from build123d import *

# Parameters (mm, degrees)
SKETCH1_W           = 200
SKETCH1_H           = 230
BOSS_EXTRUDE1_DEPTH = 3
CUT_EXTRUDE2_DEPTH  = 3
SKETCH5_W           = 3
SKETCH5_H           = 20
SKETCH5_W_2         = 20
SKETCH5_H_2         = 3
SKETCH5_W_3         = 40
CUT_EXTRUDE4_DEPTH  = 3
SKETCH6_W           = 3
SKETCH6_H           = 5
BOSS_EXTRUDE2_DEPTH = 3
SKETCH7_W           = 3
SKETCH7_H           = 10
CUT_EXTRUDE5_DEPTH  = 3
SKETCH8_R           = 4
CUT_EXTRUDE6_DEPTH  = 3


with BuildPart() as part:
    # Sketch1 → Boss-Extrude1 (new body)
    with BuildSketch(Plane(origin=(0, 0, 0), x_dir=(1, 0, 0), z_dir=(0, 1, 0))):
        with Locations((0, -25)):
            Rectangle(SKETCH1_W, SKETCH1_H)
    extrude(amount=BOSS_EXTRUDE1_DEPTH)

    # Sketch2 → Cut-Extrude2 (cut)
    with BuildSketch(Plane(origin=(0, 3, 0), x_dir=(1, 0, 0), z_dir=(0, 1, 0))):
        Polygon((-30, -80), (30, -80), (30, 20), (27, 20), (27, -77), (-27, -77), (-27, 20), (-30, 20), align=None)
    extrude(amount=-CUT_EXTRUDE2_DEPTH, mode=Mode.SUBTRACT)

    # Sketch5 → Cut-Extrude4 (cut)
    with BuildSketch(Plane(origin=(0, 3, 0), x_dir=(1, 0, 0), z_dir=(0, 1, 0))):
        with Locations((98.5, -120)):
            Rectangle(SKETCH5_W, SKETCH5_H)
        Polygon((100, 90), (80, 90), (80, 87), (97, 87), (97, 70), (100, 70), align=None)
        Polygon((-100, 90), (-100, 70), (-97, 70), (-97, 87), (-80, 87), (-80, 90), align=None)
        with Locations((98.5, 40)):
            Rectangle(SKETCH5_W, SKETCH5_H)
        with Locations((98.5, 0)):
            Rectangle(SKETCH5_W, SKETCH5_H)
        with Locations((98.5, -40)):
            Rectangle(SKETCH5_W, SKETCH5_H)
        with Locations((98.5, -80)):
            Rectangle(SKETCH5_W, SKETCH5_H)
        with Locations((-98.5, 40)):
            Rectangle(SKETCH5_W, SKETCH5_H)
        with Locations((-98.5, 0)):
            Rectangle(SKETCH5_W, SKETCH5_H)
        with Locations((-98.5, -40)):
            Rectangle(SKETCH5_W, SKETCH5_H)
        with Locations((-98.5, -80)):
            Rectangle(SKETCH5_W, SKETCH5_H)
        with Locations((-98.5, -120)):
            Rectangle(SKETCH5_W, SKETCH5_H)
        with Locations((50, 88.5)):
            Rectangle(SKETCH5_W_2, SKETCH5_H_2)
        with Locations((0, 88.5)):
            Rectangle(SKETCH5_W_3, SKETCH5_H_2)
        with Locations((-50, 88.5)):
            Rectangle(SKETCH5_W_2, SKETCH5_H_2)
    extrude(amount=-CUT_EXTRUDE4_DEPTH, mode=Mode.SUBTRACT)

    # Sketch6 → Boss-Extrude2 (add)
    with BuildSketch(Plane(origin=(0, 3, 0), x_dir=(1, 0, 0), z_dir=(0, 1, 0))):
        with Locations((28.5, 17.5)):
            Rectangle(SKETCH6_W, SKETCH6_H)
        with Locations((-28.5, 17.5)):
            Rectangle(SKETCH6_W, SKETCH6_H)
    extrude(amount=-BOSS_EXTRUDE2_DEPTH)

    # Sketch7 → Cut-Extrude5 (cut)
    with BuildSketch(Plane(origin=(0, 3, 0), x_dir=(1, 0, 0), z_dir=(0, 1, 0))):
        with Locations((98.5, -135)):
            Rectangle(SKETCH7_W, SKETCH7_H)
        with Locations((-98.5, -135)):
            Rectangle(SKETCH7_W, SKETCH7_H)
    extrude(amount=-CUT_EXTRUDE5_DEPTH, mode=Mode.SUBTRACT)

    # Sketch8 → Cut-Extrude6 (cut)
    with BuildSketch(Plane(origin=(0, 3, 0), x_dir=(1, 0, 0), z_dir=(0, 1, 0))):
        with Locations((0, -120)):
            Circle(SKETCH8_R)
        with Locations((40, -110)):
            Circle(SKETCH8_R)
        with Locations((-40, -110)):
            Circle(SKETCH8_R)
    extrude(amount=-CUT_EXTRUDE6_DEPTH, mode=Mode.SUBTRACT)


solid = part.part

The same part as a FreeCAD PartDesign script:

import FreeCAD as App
import Part
import Sketcher
from FreeCAD import Vector

doc = App.newDocument("Part")
body = doc.addObject("PartDesign::Body", "Body")

# Sketch on XZ plane
sketch1 = body.newObject("Sketcher::SketchObject", "Sketch")
sketch1.AttachmentSupport = (doc.getObject("XZ_Plane"), [""])
sketch1.MapMode = "FlatFace"
sketch1.addGeometry([
    Part.LineSegment(Vector(-100, -90, 0), Vector(-100, 140, 0)),
    Part.LineSegment(Vector(-100, 140, 0), Vector(100, 140, 0)),
    Part.LineSegment(Vector(100, 140, 0), Vector(100, -90, 0)),
    Part.LineSegment(Vector(100, -90, 0), Vector(-100, -90, 0)),
], False)
sketch1.addConstraint([
    Sketcher.Constraint("Coincident", 0, 2, 1, 1),
    Sketcher.Constraint("Coincident", 1, 2, 2, 1),
    Sketcher.Constraint("Coincident", 2, 2, 3, 1),
    Sketcher.Constraint("Coincident", 3, 2, 0, 1),
    Sketcher.Constraint("Vertical", 0),
    Sketcher.Constraint("Horizontal", 1),
    Sketcher.Constraint("Vertical", 2),
    Sketcher.Constraint("Horizontal", 3),
    Sketcher.Constraint("DistanceX", 1, 1, 1, 2, 200.0),
    Sketcher.Constraint("DistanceY", 0, 1, 0, 2, 230.0),
    Sketcher.Constraint("DistanceX", 0, 2, -1, 1, 100.0),
    Sketcher.Constraint("DistanceY", -1, 1, 0, 2, 140.0),
])
pad1 = body.newObject("PartDesign::Pad", "Pad")
pad1.Profile = sketch1
pad1.Length = 3
pad1.Reversed = True

# Sketch on XZ plane
sketch2 = body.newObject("Sketcher::SketchObject", "Sketch001")
sketch2.AttachmentSupport = (doc.getObject("XZ_Plane"), [""])
sketch2.MapMode = "FlatFace"
sketch2.AttachmentOffset = App.Placement(Vector(0, 0, -3), App.Rotation())
sketch2.addGeometry([
    Part.LineSegment(Vector(-30, 80, 0), Vector(30, 80, 0)),  # 0
    Part.LineSegment(Vector(30, 80, 0), Vector(30, -20, 0)),  # 1
    Part.LineSegment(Vector(30, -20, 0), Vector(27, -20, 0)),  # 2
    Part.LineSegment(Vector(27, -20, 0), Vector(27, 77, 0)),  # 3
    Part.LineSegment(Vector(27, 77, 0), Vector(-27, 77, 0)),  # 4
    Part.LineSegment(Vector(-27, 77, 0), Vector(-27, -20, 0)),  # 5
    Part.LineSegment(Vector(-27, -20, 0), Vector(-30, -20, 0)),  # 6
    Part.LineSegment(Vector(-30, -20, 0), Vector(-30, 80, 0)),  # 7
], False)
sketch2.addConstraint([
    Sketcher.Constraint("Coincident", 0, 2, 1, 1),
    Sketcher.Constraint("Coincident", 1, 2, 2, 1),
    Sketcher.Constraint("Coincident", 2, 2, 3, 1),
    Sketcher.Constraint("Coincident", 3, 2, 4, 1),
    Sketcher.Constraint("Coincident", 4, 2, 5, 1),
    Sketcher.Constraint("Coincident", 5, 2, 6, 1),
    Sketcher.Constraint("Coincident", 6, 2, 7, 1),
    Sketcher.Constraint("Coincident", 7, 2, 0, 1),
    Sketcher.Constraint("Horizontal", 0),
    Sketcher.Constraint("Vertical", 1),
    Sketcher.Constraint("Horizontal", 2),
    Sketcher.Constraint("Vertical", 3),
    Sketcher.Constraint("Horizontal", 4),
    Sketcher.Constraint("Vertical", 5),
    Sketcher.Constraint("Horizontal", 6),
    Sketcher.Constraint("Vertical", 7),
    Sketcher.Constraint("Symmetric", 2, 2, 5, 2, -2),
    Sketcher.Constraint("Equal", 2, 6),
    Sketcher.Constraint("DistanceX", 0, 1, 0, 2, 60.0),
    Sketcher.Constraint("DistanceX", 2, 2, 2, 1, 3.0),
    Sketcher.Constraint("DistanceY", 1, 2, 1, 1, 100.0),
    Sketcher.Constraint("DistanceY", 3, 1, 3, 2, 97.0),
    Sketcher.Constraint("DistanceY", -1, 1, 0, 2, 80.0),
])
pocket1 = body.newObject("PartDesign::Pocket", "Pocket")
pocket1.Profile = sketch2
pocket1.Length = 3
pocket1.Reversed = True

# Sketch on XZ plane
sketch3 = body.newObject("Sketcher::SketchObject", "Sketch002")
sketch3.AttachmentSupport = (doc.getObject("XZ_Plane"), [""])
sketch3.MapMode = "FlatFace"
sketch3.AttachmentOffset = App.Placement(Vector(0, 0, -3), App.Rotation())
sketch3.addGeometry([
    Part.LineSegment(Vector(97, 110, 0), Vector(97, 130, 0)),  # 0
    Part.LineSegment(Vector(97, 130, 0), Vector(100, 130, 0)),  # 1
    Part.LineSegment(Vector(100, 130, 0), Vector(100, 110, 0)),  # 2
    Part.LineSegment(Vector(100, 110, 0), Vector(97, 110, 0)),  # 3
    Part.LineSegment(Vector(100, -90, 0), Vector(80, -90, 0)),  # 4
    Part.LineSegment(Vector(80, -90, 0), Vector(80, -87, 0)),  # 5
    Part.LineSegment(Vector(80, -87, 0), Vector(97, -87, 0)),  # 6
    Part.LineSegment(Vector(97, -87, 0), Vector(97, -70, 0)),  # 7
    Part.LineSegment(Vector(97, -70, 0), Vector(100, -70, 0)),  # 8
    Part.LineSegment(Vector(100, -70, 0), Vector(100, -90, 0)),  # 9
    Part.LineSegment(Vector(-100, -90, 0), Vector(-100, -70, 0)),  # 10
    Part.LineSegment(Vector(-100, -70, 0), Vector(-97, -70, 0)),  # 11
    Part.LineSegment(Vector(-97, -70, 0), Vector(-97, -87, 0)),  # 12
    Part.LineSegment(Vector(-97, -87, 0), Vector(-80, -87, 0)),  # 13
    Part.LineSegment(Vector(-80, -87, 0), Vector(-80, -90, 0)),  # 14
    Part.LineSegment(Vector(-80, -90, 0), Vector(-100, -90, 0)),  # 15
    Part.LineSegment(Vector(97, -50, 0), Vector(97, -30, 0)),  # 16
    Part.LineSegment(Vector(97, -30, 0), Vector(100, -30, 0)),  # 17
    Part.LineSegment(Vector(100, -30, 0), Vector(100, -50, 0)),  # 18
    Part.LineSegment(Vector(100, -50, 0), Vector(97, -50, 0)),  # 19
    Part.LineSegment(Vector(97, -10, 0), Vector(97, 10, 0)),  # 20
    Part.LineSegment(Vector(97, 10, 0), Vector(100, 10, 0)),  # 21
    Part.LineSegment(Vector(100, 10, 0), Vector(100, -10, 0)),  # 22
    Part.LineSegment(Vector(100, -10, 0), Vector(97, -10, 0)),  # 23
    Part.LineSegment(Vector(97, 30, 0), Vector(97, 50, 0)),  # 24
    Part.LineSegment(Vector(97, 50, 0), Vector(100, 50, 0)),  # 25
    Part.LineSegment(Vector(100, 50, 0), Vector(100, 30, 0)),  # 26
    Part.LineSegment(Vector(100, 30, 0), Vector(97, 30, 0)),  # 27
    Part.LineSegment(Vector(97, 70, 0), Vector(97, 90, 0)),  # 28
    Part.LineSegment(Vector(97, 90, 0), Vector(100, 90, 0)),  # 29
    Part.LineSegment(Vector(100, 90, 0), Vector(100, 70, 0)),  # 30
    Part.LineSegment(Vector(100, 70, 0), Vector(97, 70, 0)),  # 31
    Part.LineSegment(Vector(-100, -50, 0), Vector(-100, -30, 0)),  # 32
    Part.LineSegment(Vector(-100, -30, 0), Vector(-97, -30, 0)),  # 33
    Part.LineSegment(Vector(-97, -30, 0), Vector(-97, -50, 0)),  # 34
    Part.LineSegment(Vector(-97, -50, 0), Vector(-100, -50, 0)),  # 35
    Part.LineSegment(Vector(-100, -10, 0), Vector(-100, 10, 0)),  # 36
    Part.LineSegment(Vector(-100, 10, 0), Vector(-97, 10, 0)),  # 37
    Part.LineSegment(Vector(-97, 10, 0), Vector(-97, -10, 0)),  # 38
    Part.LineSegment(Vector(-97, -10, 0), Vector(-100, -10, 0)),  # 39
    Part.LineSegment(Vector(-100, 30, 0), Vector(-100, 50, 0)),  # 40
    Part.LineSegment(Vector(-100, 50, 0), Vector(-97, 50, 0)),  # 41
    Part.LineSegment(Vector(-97, 50, 0), Vector(-97, 30, 0)),  # 42
    Part.LineSegment(Vector(-97, 30, 0), Vector(-100, 30, 0)),  # 43
    Part.LineSegment(Vector(-100, 70, 0), Vector(-100, 90, 0)),  # 44
    Part.LineSegment(Vector(-100, 90, 0), Vector(-97, 90, 0)),  # 45
    Part.LineSegment(Vector(-97, 90, 0), Vector(-97, 70, 0)),  # 46
    Part.LineSegment(Vector(-97, 70, 0), Vector(-100, 70, 0)),  # 47
    Part.LineSegment(Vector(-100, 110, 0), Vector(-100, 130, 0)),  # 48
    Part.LineSegment(Vector(-100, 130, 0), Vector(-97, 130, 0)),  # 49
    Part.LineSegment(Vector(-97, 130, 0), Vector(-97, 110, 0)),  # 50
    Part.LineSegment(Vector(-97, 110, 0), Vector(-100, 110, 0)),  # 51
    Part.LineSegment(Vector(40, -90, 0), Vector(40, -87, 0)),  # 52
    Part.LineSegment(Vector(40, -87, 0), Vector(60, -87, 0)),  # 53
    Part.LineSegment(Vector(60, -87, 0), Vector(60, -90, 0)),  # 54
    Part.LineSegment(Vector(60, -90, 0), Vector(40, -90, 0)),  # 55
    Part.LineSegment(Vector(-20, -90, 0), Vector(-20, -87, 0)),  # 56
    Part.LineSegment(Vector(-20, -87, 0), Vector(20, -87, 0)),  # 57
    Part.LineSegment(Vector(20, -87, 0), Vector(20, -90, 0)),  # 58
    Part.LineSegment(Vector(20, -90, 0), Vector(-20, -90, 0)),  # 59
    Part.LineSegment(Vector(-60, -90, 0), Vector(-60, -87, 0)),  # 60
    Part.LineSegment(Vector(-60, -87, 0), Vector(-40, -87, 0)),  # 61
    Part.LineSegment(Vector(-40, -87, 0), Vector(-40, -90, 0)),  # 62
    Part.LineSegment(Vector(-40, -90, 0), Vector(-60, -90, 0)),  # 63
], False)
sketch3.addConstraint([
    Sketcher.Constraint("Coincident", 0, 2, 1, 1),
    Sketcher.Constraint("Coincident", 1, 2, 2, 1),
    Sketcher.Constraint("Coincident", 2, 2, 3, 1),
    Sketcher.Constraint("Coincident", 3, 2, 0, 1),
    Sketcher.Constraint("Coincident", 4, 2, 5, 1),
    Sketcher.Constraint("Coincident", 5, 2, 6, 1),
    Sketcher.Constraint("Coincident", 6, 2, 7, 1),
    Sketcher.Constraint("Coincident", 7, 2, 8, 1),
    Sketcher.Constraint("Coincident", 8, 2, 9, 1),
    Sketcher.Constraint("Coincident", 9, 2, 4, 1),
    Sketcher.Constraint("Coincident", 10, 2, 11, 1),
    Sketcher.Constraint("Coincident", 11, 2, 12, 1),
    Sketcher.Constraint("Coincident", 12, 2, 13, 1),
    Sketcher.Constraint("Coincident", 13, 2, 14, 1),
    Sketcher.Constraint("Coincident", 14, 2, 15, 1),
    Sketcher.Constraint("Coincident", 15, 2, 10, 1),
    Sketcher.Constraint("Coincident", 16, 2, 17, 1),
    Sketcher.Constraint("Coincident", 17, 2, 18, 1),
    Sketcher.Constraint("Coincident", 18, 2, 19, 1),
    Sketcher.Constraint("Coincident", 19, 2, 16, 1),
    Sketcher.Constraint("Coincident", 20, 2, 21, 1),
    Sketcher.Constraint("Coincident", 21, 2, 22, 1),
    Sketcher.Constraint("Coincident", 22, 2, 23, 1),
    Sketcher.Constraint("Coincident", 23, 2, 20, 1),
    Sketcher.Constraint("Coincident", 24, 2, 25, 1),
    Sketcher.Constraint("Coincident", 25, 2, 26, 1),
    Sketcher.Constraint("Coincident", 26, 2, 27, 1),
    Sketcher.Constraint("Coincident", 27, 2, 24, 1),
    Sketcher.Constraint("Coincident", 28, 2, 29, 1),
    Sketcher.Constraint("Coincident", 29, 2, 30, 1),
    Sketcher.Constraint("Coincident", 30, 2, 31, 1),
    Sketcher.Constraint("Coincident", 31, 2, 28, 1),
    Sketcher.Constraint("Coincident", 32, 2, 33, 1),
    Sketcher.Constraint("Coincident", 33, 2, 34, 1),
    Sketcher.Constraint("Coincident", 34, 2, 35, 1),
    Sketcher.Constraint("Coincident", 35, 2, 32, 1),
    Sketcher.Constraint("Coincident", 36, 2, 37, 1),
    Sketcher.Constraint("Coincident", 37, 2, 38, 1),
    Sketcher.Constraint("Coincident", 38, 2, 39, 1),
    Sketcher.Constraint("Coincident", 39, 2, 36, 1),
    Sketcher.Constraint("Coincident", 40, 2, 41, 1),
    Sketcher.Constraint("Coincident", 41, 2, 42, 1),
    Sketcher.Constraint("Coincident", 42, 2, 43, 1),
    Sketcher.Constraint("Coincident", 43, 2, 40, 1),
    Sketcher.Constraint("Coincident", 44, 2, 45, 1),
    Sketcher.Constraint("Coincident", 45, 2, 46, 1),
    Sketcher.Constraint("Coincident", 46, 2, 47, 1),
    Sketcher.Constraint("Coincident", 47, 2, 44, 1),
    Sketcher.Constraint("Coincident", 48, 2, 49, 1),
    Sketcher.Constraint("Coincident", 49, 2, 50, 1),
    Sketcher.Constraint("Coincident", 50, 2, 51, 1),
    Sketcher.Constraint("Coincident", 51, 2, 48, 1),
    Sketcher.Constraint("Coincident", 52, 2, 53, 1),
    Sketcher.Constraint("Coincident", 53, 2, 54, 1),
    Sketcher.Constraint("Coincident", 54, 2, 55, 1),
    Sketcher.Constraint("Coincident", 55, 2, 52, 1),
    Sketcher.Constraint("Coincident", 56, 2, 57, 1),
    Sketcher.Constraint("Coincident", 57, 2, 58, 1),
    Sketcher.Constraint("Coincident", 58, 2, 59, 1),
    Sketcher.Constraint("Coincident", 59, 2, 56, 1),
    Sketcher.Constraint("Coincident", 60, 2, 61, 1),
    Sketcher.Constraint("Coincident", 61, 2, 62, 1),
    Sketcher.Constraint("Coincident", 62, 2, 63, 1),
    Sketcher.Constraint("Coincident", 63, 2, 60, 1),
    Sketcher.Constraint("Vertical", 0),
    Sketcher.Constraint("Horizontal", 1),
    Sketcher.Constraint("Vertical", 2),
    Sketcher.Constraint("Horizontal", 3),
    Sketcher.Constraint("Horizontal", 4),
    Sketcher.Constraint("Vertical", 5),
    Sketcher.Constraint("Horizontal", 6),
    Sketcher.Constraint("Vertical", 7),
    Sketcher.Constraint("Horizontal", 8),
    Sketcher.Constraint("Vertical", 9),
    Sketcher.Constraint("Vertical", 10),
    Sketcher.Constraint("Horizontal", 11),
    Sketcher.Constraint("Vertical", 12),
    Sketcher.Constraint("Horizontal", 13),
    Sketcher.Constraint("Vertical", 14),
    Sketcher.Constraint("Horizontal", 15),
    Sketcher.Constraint("Vertical", 16),
    Sketcher.Constraint("Horizontal", 17),
    Sketcher.Constraint("Vertical", 18),
    Sketcher.Constraint("Horizontal", 19),
    Sketcher.Constraint("Vertical", 20),
    Sketcher.Constraint("Horizontal", 21),
    Sketcher.Constraint("Vertical", 22),
    Sketcher.Constraint("Horizontal", 23),
    Sketcher.Constraint("Vertical", 24),
    Sketcher.Constraint("Horizontal", 25),
    Sketcher.Constraint("Vertical", 26),
    Sketcher.Constraint("Horizontal", 27),
    Sketcher.Constraint("Vertical", 28),
    Sketcher.Constraint("Horizontal", 29),
    Sketcher.Constraint("Vertical", 30),
    Sketcher.Constraint("Horizontal", 31),
    Sketcher.Constraint("Vertical", 32),
    Sketcher.Constraint("Horizontal", 33),
    Sketcher.Constraint("Vertical", 34),
    Sketcher.Constraint("Horizontal", 35),
    Sketcher.Constraint("Vertical", 36),
    Sketcher.Constraint("Horizontal", 37),
    Sketcher.Constraint("Vertical", 38),
    Sketcher.Constraint("Horizontal", 39),
    Sketcher.Constraint("Vertical", 40),
    Sketcher.Constraint("Horizontal", 41),
    Sketcher.Constraint("Vertical", 42),
    Sketcher.Constraint("Horizontal", 43),
    Sketcher.Constraint("Vertical", 44),
    Sketcher.Constraint("Horizontal", 45),
    Sketcher.Constraint("Vertical", 46),
    Sketcher.Constraint("Horizontal", 47),
    Sketcher.Constraint("Vertical", 48),
    Sketcher.Constraint("Horizontal", 49),
    Sketcher.Constraint("Vertical", 50),
    Sketcher.Constraint("Horizontal", 51),
    Sketcher.Constraint("Vertical", 52),
    Sketcher.Constraint("Horizontal", 53),
    Sketcher.Constraint("Vertical", 54),
    Sketcher.Constraint("Horizontal", 55),
    Sketcher.Constraint("Vertical", 56),
    Sketcher.Constraint("Horizontal", 57),
    Sketcher.Constraint("Vertical", 58),
    Sketcher.Constraint("Horizontal", 59),
    Sketcher.Constraint("Vertical", 60),
    Sketcher.Constraint("Horizontal", 61),
    Sketcher.Constraint("Vertical", 62),
    Sketcher.Constraint("Horizontal", 63),
    Sketcher.Constraint("Symmetric", 15, 2, 29, 2, -1, 1),
    Sketcher.Constraint("Symmetric", 11, 2, 31, 2, -1, 1),
    Sketcher.Constraint("Symmetric", 26, 2, 32, 2, -1, 1),
    Sketcher.Constraint("Symmetric", 24, 2, 34, 2, -1, 1),
    Sketcher.Constraint("Symmetric", 22, 2, 36, 2, -1, 1),
    Sketcher.Constraint("Symmetric", 20, 2, 38, 2, -1, 1),
    Sketcher.Constraint("Symmetric", 18, 2, 40, 2, -1, 1),
    Sketcher.Constraint("Symmetric", 16, 2, 42, 2, -1, 1),
    Sketcher.Constraint("Symmetric", 9, 2, 44, 2, -1, 1),
    Sketcher.Constraint("Symmetric", 7, 2, 46, 2, -1, 1),
    Sketcher.Constraint("Symmetric", 8, 2, 10, 2, -2),
    Sketcher.Constraint("Symmetric", 6, 2, 12, 2, -2),
    Sketcher.Constraint("Symmetric", 4, 2, 14, 2, -2),
    Sketcher.Constraint("Symmetric", 17, 2, 32, 2, -2),
    Sketcher.Constraint("Symmetric", 19, 2, 34, 2, -2),
    Sketcher.Constraint("Symmetric", 1, 2, 48, 2, -2),
    Sketcher.Constraint("Symmetric", 3, 2, 50, 2, -2),
    Sketcher.Constraint("Symmetric", 53, 2, 60, 2, -2),
    Sketcher.Constraint("Symmetric", 55, 2, 62, 2, -2),
    Sketcher.Constraint("Horizontal", 21, 2, 36, 2),
    Sketcher.Constraint("Horizontal", 13, 2, 52, 2),
    Sketcher.Constraint("Horizontal", 15, 2, 54, 2),
    Sketcher.Constraint("Horizontal", 53, 2, 56, 2),
    Sketcher.Constraint("Horizontal", 55, 2, 58, 2),
    Sketcher.Constraint("Vertical", 3, 2, 6, 2),
    Sketcher.Constraint("Vertical", 2, 2, 8, 2),
    Sketcher.Constraint("Vertical", 7, 2, 16, 2),
    Sketcher.Constraint("Vertical", 9, 2, 17, 2),
    Sketcher.Constraint("Vertical", 19, 2, 20, 2),
    Sketcher.Constraint("Vertical", 18, 2, 21, 2),
    Sketcher.Constraint("Equal", 15, 53),
    Sketcher.Constraint("Equal", 63, 0),
    Sketcher.Constraint("Equal", 51, 5),
    Sketcher.Constraint("Equal", 13, 7),
    Sketcher.Constraint("Equal", 10, 16),
    Sketcher.Constraint("Equal", 18, 20),
    Sketcher.Constraint("DistanceX", 1, 1, 1, 2, 3.0),
    Sketcher.Constraint("DistanceX", 4, 2, 4, 1, 20.0),
    Sketcher.Constraint("DistanceX", 57, 1, 57, 2, 40.0),
    Sketcher.Constraint("DistanceX", -1, 1, 0, 2, 97.0),
    Sketcher.Constraint("DistanceY", -1, 1, 0, 2, 130.0),
    Sketcher.Constraint("DistanceY", 4, 2, -1, 1, 90.0),
    Sketcher.Constraint("DistanceY", 16, 2, -1, 1, 30.0),
    Sketcher.Constraint("DistanceX", -1, 1, 52, 2, 40.0),
    Sketcher.Constraint("DistanceX", 56, 2, -1, 1, 20.0),
])
pocket2 = body.newObject("PartDesign::Pocket", "Pocket001")
pocket2.Profile = sketch3
pocket2.Length = 3
pocket2.Reversed = True

# Sketch on XZ plane
sketch4 = body.newObject("Sketcher::SketchObject", "Sketch003")
sketch4.AttachmentSupport = (doc.getObject("XZ_Plane"), [""])
sketch4.MapMode = "FlatFace"
sketch4.AttachmentOffset = App.Placement(Vector(0, 0, -3), App.Rotation())
sketch4.addGeometry([
    Part.LineSegment(Vector(27, -20, 0), Vector(27, -15, 0)),  # 0
    Part.LineSegment(Vector(27, -15, 0), Vector(30, -15, 0)),  # 1
    Part.LineSegment(Vector(30, -15, 0), Vector(30, -20, 0)),  # 2
    Part.LineSegment(Vector(30, -20, 0), Vector(27, -20, 0)),  # 3
    Part.LineSegment(Vector(-30, -20, 0), Vector(-30, -15, 0)),  # 4
    Part.LineSegment(Vector(-30, -15, 0), Vector(-27, -15, 0)),  # 5
    Part.LineSegment(Vector(-27, -15, 0), Vector(-27, -20, 0)),  # 6
    Part.LineSegment(Vector(-27, -20, 0), Vector(-30, -20, 0)),  # 7
], False)
sketch4.addConstraint([
    Sketcher.Constraint("Coincident", 0, 2, 1, 1),
    Sketcher.Constraint("Coincident", 1, 2, 2, 1),
    Sketcher.Constraint("Coincident", 2, 2, 3, 1),
    Sketcher.Constraint("Coincident", 3, 2, 0, 1),
    Sketcher.Constraint("Coincident", 4, 2, 5, 1),
    Sketcher.Constraint("Coincident", 5, 2, 6, 1),
    Sketcher.Constraint("Coincident", 6, 2, 7, 1),
    Sketcher.Constraint("Coincident", 7, 2, 4, 1),
    Sketcher.Constraint("Vertical", 0),
    Sketcher.Constraint("Horizontal", 1),
    Sketcher.Constraint("Vertical", 2),
    Sketcher.Constraint("Horizontal", 3),
    Sketcher.Constraint("Vertical", 4),
    Sketcher.Constraint("Horizontal", 5),
    Sketcher.Constraint("Vertical", 6),
    Sketcher.Constraint("Horizontal", 7),
    Sketcher.Constraint("Symmetric", 1, 2, 4, 2, -2),
    Sketcher.Constraint("Symmetric", 3, 2, 6, 2, -2),
    Sketcher.Constraint("DistanceX", 1, 1, 1, 2, 3.0),
    Sketcher.Constraint("DistanceY", 0, 1, 0, 2, 5.0),
    Sketcher.Constraint("DistanceX", -1, 1, 0, 2, 27.0),
    Sketcher.Constraint("DistanceY", 0, 2, -1, 1, 15.0),
])
pad2 = body.newObject("PartDesign::Pad", "Pad001")
pad2.Profile = sketch4
pad2.Length = 3

# Sketch on XZ plane
sketch5 = body.newObject("Sketcher::SketchObject", "Sketch004")
sketch5.AttachmentSupport = (doc.getObject("XZ_Plane"), [""])
sketch5.MapMode = "FlatFace"
sketch5.AttachmentOffset = App.Placement(Vector(0, 0, -3), App.Rotation())
sketch5.addGeometry([
    Part.LineSegment(Vector(97, 130, 0), Vector(97, 140, 0)),  # 0
    Part.LineSegment(Vector(97, 140, 0), Vector(100, 140, 0)),  # 1
    Part.LineSegment(Vector(100, 140, 0), Vector(100, 130, 0)),  # 2
    Part.LineSegment(Vector(100, 130, 0), Vector(97, 130, 0)),  # 3
    Part.LineSegment(Vector(-100, 130, 0), Vector(-100, 140, 0)),  # 4
    Part.LineSegment(Vector(-100, 140, 0), Vector(-97, 140, 0)),  # 5
    Part.LineSegment(Vector(-97, 140, 0), Vector(-97, 130, 0)),  # 6
    Part.LineSegment(Vector(-97, 130, 0), Vector(-100, 130, 0)),  # 7
], False)
sketch5.addConstraint([
    Sketcher.Constraint("Coincident", 0, 2, 1, 1),
    Sketcher.Constraint("Coincident", 1, 2, 2, 1),
    Sketcher.Constraint("Coincident", 2, 2, 3, 1),
    Sketcher.Constraint("Coincident", 3, 2, 0, 1),
    Sketcher.Constraint("Coincident", 4, 2, 5, 1),
    Sketcher.Constraint("Coincident", 5, 2, 6, 1),
    Sketcher.Constraint("Coincident", 6, 2, 7, 1),
    Sketcher.Constraint("Coincident", 7, 2, 4, 1),
    Sketcher.Constraint("Vertical", 0),
    Sketcher.Constraint("Horizontal", 1),
    Sketcher.Constraint("Vertical", 2),
    Sketcher.Constraint("Horizontal", 3),
    Sketcher.Constraint("Vertical", 4),
    Sketcher.Constraint("Horizontal", 5),
    Sketcher.Constraint("Vertical", 6),
    Sketcher.Constraint("Horizontal", 7),
    Sketcher.Constraint("Symmetric", 1, 2, 4, 2, -2),
    Sketcher.Constraint("Symmetric", 3, 2, 6, 2, -2),
    Sketcher.Constraint("DistanceX", 1, 1, 1, 2, 3.0),
    Sketcher.Constraint("DistanceY", 0, 1, 0, 2, 10.0),
    Sketcher.Constraint("DistanceX", -1, 1, 0, 2, 97.0),
    Sketcher.Constraint("DistanceY", -1, 1, 0, 2, 140.0),
])
pocket3 = body.newObject("PartDesign::Pocket", "Pocket002")
pocket3.Profile = sketch5
pocket3.Length = 3
pocket3.Reversed = True

# Sketch on XZ plane
sketch6 = body.newObject("Sketcher::SketchObject", "Sketch005")
sketch6.AttachmentSupport = (doc.getObject("XZ_Plane"), [""])
sketch6.MapMode = "FlatFace"
sketch6.AttachmentOffset = App.Placement(Vector(0, 0, -3), App.Rotation())
sketch6.addGeometry([
    Part.Circle(Vector(0, 120, 0), Vector(0, 0, 1), 4),
    Part.Circle(Vector(40, 110, 0), Vector(0, 0, 1), 4),
    Part.Circle(Vector(-40, 110, 0), Vector(0, 0, 1), 4),
], False)
sketch6.addConstraint([
    Sketcher.Constraint("Equal", 0, 1),
    Sketcher.Constraint("Equal", 1, 2),
    Sketcher.Constraint("Symmetric", 1, 3, 2, 3, -2),
    Sketcher.Constraint("PointOnObject", 0, 3, -2),
    Sketcher.Constraint("Diameter", 0, 8.0),
    Sketcher.Constraint("DistanceY", -1, 1, 0, 3, 120.0),
    Sketcher.Constraint("DistanceX", -1, 1, 1, 3, 40.0),
    Sketcher.Constraint("DistanceY", -1, 1, 1, 3, 110.0),
])
pocket4 = body.newObject("PartDesign::Pocket", "Pocket003")
pocket4.Profile = sketch6
pocket4.Length = 3
pocket4.Reversed = True

doc.recompute()
